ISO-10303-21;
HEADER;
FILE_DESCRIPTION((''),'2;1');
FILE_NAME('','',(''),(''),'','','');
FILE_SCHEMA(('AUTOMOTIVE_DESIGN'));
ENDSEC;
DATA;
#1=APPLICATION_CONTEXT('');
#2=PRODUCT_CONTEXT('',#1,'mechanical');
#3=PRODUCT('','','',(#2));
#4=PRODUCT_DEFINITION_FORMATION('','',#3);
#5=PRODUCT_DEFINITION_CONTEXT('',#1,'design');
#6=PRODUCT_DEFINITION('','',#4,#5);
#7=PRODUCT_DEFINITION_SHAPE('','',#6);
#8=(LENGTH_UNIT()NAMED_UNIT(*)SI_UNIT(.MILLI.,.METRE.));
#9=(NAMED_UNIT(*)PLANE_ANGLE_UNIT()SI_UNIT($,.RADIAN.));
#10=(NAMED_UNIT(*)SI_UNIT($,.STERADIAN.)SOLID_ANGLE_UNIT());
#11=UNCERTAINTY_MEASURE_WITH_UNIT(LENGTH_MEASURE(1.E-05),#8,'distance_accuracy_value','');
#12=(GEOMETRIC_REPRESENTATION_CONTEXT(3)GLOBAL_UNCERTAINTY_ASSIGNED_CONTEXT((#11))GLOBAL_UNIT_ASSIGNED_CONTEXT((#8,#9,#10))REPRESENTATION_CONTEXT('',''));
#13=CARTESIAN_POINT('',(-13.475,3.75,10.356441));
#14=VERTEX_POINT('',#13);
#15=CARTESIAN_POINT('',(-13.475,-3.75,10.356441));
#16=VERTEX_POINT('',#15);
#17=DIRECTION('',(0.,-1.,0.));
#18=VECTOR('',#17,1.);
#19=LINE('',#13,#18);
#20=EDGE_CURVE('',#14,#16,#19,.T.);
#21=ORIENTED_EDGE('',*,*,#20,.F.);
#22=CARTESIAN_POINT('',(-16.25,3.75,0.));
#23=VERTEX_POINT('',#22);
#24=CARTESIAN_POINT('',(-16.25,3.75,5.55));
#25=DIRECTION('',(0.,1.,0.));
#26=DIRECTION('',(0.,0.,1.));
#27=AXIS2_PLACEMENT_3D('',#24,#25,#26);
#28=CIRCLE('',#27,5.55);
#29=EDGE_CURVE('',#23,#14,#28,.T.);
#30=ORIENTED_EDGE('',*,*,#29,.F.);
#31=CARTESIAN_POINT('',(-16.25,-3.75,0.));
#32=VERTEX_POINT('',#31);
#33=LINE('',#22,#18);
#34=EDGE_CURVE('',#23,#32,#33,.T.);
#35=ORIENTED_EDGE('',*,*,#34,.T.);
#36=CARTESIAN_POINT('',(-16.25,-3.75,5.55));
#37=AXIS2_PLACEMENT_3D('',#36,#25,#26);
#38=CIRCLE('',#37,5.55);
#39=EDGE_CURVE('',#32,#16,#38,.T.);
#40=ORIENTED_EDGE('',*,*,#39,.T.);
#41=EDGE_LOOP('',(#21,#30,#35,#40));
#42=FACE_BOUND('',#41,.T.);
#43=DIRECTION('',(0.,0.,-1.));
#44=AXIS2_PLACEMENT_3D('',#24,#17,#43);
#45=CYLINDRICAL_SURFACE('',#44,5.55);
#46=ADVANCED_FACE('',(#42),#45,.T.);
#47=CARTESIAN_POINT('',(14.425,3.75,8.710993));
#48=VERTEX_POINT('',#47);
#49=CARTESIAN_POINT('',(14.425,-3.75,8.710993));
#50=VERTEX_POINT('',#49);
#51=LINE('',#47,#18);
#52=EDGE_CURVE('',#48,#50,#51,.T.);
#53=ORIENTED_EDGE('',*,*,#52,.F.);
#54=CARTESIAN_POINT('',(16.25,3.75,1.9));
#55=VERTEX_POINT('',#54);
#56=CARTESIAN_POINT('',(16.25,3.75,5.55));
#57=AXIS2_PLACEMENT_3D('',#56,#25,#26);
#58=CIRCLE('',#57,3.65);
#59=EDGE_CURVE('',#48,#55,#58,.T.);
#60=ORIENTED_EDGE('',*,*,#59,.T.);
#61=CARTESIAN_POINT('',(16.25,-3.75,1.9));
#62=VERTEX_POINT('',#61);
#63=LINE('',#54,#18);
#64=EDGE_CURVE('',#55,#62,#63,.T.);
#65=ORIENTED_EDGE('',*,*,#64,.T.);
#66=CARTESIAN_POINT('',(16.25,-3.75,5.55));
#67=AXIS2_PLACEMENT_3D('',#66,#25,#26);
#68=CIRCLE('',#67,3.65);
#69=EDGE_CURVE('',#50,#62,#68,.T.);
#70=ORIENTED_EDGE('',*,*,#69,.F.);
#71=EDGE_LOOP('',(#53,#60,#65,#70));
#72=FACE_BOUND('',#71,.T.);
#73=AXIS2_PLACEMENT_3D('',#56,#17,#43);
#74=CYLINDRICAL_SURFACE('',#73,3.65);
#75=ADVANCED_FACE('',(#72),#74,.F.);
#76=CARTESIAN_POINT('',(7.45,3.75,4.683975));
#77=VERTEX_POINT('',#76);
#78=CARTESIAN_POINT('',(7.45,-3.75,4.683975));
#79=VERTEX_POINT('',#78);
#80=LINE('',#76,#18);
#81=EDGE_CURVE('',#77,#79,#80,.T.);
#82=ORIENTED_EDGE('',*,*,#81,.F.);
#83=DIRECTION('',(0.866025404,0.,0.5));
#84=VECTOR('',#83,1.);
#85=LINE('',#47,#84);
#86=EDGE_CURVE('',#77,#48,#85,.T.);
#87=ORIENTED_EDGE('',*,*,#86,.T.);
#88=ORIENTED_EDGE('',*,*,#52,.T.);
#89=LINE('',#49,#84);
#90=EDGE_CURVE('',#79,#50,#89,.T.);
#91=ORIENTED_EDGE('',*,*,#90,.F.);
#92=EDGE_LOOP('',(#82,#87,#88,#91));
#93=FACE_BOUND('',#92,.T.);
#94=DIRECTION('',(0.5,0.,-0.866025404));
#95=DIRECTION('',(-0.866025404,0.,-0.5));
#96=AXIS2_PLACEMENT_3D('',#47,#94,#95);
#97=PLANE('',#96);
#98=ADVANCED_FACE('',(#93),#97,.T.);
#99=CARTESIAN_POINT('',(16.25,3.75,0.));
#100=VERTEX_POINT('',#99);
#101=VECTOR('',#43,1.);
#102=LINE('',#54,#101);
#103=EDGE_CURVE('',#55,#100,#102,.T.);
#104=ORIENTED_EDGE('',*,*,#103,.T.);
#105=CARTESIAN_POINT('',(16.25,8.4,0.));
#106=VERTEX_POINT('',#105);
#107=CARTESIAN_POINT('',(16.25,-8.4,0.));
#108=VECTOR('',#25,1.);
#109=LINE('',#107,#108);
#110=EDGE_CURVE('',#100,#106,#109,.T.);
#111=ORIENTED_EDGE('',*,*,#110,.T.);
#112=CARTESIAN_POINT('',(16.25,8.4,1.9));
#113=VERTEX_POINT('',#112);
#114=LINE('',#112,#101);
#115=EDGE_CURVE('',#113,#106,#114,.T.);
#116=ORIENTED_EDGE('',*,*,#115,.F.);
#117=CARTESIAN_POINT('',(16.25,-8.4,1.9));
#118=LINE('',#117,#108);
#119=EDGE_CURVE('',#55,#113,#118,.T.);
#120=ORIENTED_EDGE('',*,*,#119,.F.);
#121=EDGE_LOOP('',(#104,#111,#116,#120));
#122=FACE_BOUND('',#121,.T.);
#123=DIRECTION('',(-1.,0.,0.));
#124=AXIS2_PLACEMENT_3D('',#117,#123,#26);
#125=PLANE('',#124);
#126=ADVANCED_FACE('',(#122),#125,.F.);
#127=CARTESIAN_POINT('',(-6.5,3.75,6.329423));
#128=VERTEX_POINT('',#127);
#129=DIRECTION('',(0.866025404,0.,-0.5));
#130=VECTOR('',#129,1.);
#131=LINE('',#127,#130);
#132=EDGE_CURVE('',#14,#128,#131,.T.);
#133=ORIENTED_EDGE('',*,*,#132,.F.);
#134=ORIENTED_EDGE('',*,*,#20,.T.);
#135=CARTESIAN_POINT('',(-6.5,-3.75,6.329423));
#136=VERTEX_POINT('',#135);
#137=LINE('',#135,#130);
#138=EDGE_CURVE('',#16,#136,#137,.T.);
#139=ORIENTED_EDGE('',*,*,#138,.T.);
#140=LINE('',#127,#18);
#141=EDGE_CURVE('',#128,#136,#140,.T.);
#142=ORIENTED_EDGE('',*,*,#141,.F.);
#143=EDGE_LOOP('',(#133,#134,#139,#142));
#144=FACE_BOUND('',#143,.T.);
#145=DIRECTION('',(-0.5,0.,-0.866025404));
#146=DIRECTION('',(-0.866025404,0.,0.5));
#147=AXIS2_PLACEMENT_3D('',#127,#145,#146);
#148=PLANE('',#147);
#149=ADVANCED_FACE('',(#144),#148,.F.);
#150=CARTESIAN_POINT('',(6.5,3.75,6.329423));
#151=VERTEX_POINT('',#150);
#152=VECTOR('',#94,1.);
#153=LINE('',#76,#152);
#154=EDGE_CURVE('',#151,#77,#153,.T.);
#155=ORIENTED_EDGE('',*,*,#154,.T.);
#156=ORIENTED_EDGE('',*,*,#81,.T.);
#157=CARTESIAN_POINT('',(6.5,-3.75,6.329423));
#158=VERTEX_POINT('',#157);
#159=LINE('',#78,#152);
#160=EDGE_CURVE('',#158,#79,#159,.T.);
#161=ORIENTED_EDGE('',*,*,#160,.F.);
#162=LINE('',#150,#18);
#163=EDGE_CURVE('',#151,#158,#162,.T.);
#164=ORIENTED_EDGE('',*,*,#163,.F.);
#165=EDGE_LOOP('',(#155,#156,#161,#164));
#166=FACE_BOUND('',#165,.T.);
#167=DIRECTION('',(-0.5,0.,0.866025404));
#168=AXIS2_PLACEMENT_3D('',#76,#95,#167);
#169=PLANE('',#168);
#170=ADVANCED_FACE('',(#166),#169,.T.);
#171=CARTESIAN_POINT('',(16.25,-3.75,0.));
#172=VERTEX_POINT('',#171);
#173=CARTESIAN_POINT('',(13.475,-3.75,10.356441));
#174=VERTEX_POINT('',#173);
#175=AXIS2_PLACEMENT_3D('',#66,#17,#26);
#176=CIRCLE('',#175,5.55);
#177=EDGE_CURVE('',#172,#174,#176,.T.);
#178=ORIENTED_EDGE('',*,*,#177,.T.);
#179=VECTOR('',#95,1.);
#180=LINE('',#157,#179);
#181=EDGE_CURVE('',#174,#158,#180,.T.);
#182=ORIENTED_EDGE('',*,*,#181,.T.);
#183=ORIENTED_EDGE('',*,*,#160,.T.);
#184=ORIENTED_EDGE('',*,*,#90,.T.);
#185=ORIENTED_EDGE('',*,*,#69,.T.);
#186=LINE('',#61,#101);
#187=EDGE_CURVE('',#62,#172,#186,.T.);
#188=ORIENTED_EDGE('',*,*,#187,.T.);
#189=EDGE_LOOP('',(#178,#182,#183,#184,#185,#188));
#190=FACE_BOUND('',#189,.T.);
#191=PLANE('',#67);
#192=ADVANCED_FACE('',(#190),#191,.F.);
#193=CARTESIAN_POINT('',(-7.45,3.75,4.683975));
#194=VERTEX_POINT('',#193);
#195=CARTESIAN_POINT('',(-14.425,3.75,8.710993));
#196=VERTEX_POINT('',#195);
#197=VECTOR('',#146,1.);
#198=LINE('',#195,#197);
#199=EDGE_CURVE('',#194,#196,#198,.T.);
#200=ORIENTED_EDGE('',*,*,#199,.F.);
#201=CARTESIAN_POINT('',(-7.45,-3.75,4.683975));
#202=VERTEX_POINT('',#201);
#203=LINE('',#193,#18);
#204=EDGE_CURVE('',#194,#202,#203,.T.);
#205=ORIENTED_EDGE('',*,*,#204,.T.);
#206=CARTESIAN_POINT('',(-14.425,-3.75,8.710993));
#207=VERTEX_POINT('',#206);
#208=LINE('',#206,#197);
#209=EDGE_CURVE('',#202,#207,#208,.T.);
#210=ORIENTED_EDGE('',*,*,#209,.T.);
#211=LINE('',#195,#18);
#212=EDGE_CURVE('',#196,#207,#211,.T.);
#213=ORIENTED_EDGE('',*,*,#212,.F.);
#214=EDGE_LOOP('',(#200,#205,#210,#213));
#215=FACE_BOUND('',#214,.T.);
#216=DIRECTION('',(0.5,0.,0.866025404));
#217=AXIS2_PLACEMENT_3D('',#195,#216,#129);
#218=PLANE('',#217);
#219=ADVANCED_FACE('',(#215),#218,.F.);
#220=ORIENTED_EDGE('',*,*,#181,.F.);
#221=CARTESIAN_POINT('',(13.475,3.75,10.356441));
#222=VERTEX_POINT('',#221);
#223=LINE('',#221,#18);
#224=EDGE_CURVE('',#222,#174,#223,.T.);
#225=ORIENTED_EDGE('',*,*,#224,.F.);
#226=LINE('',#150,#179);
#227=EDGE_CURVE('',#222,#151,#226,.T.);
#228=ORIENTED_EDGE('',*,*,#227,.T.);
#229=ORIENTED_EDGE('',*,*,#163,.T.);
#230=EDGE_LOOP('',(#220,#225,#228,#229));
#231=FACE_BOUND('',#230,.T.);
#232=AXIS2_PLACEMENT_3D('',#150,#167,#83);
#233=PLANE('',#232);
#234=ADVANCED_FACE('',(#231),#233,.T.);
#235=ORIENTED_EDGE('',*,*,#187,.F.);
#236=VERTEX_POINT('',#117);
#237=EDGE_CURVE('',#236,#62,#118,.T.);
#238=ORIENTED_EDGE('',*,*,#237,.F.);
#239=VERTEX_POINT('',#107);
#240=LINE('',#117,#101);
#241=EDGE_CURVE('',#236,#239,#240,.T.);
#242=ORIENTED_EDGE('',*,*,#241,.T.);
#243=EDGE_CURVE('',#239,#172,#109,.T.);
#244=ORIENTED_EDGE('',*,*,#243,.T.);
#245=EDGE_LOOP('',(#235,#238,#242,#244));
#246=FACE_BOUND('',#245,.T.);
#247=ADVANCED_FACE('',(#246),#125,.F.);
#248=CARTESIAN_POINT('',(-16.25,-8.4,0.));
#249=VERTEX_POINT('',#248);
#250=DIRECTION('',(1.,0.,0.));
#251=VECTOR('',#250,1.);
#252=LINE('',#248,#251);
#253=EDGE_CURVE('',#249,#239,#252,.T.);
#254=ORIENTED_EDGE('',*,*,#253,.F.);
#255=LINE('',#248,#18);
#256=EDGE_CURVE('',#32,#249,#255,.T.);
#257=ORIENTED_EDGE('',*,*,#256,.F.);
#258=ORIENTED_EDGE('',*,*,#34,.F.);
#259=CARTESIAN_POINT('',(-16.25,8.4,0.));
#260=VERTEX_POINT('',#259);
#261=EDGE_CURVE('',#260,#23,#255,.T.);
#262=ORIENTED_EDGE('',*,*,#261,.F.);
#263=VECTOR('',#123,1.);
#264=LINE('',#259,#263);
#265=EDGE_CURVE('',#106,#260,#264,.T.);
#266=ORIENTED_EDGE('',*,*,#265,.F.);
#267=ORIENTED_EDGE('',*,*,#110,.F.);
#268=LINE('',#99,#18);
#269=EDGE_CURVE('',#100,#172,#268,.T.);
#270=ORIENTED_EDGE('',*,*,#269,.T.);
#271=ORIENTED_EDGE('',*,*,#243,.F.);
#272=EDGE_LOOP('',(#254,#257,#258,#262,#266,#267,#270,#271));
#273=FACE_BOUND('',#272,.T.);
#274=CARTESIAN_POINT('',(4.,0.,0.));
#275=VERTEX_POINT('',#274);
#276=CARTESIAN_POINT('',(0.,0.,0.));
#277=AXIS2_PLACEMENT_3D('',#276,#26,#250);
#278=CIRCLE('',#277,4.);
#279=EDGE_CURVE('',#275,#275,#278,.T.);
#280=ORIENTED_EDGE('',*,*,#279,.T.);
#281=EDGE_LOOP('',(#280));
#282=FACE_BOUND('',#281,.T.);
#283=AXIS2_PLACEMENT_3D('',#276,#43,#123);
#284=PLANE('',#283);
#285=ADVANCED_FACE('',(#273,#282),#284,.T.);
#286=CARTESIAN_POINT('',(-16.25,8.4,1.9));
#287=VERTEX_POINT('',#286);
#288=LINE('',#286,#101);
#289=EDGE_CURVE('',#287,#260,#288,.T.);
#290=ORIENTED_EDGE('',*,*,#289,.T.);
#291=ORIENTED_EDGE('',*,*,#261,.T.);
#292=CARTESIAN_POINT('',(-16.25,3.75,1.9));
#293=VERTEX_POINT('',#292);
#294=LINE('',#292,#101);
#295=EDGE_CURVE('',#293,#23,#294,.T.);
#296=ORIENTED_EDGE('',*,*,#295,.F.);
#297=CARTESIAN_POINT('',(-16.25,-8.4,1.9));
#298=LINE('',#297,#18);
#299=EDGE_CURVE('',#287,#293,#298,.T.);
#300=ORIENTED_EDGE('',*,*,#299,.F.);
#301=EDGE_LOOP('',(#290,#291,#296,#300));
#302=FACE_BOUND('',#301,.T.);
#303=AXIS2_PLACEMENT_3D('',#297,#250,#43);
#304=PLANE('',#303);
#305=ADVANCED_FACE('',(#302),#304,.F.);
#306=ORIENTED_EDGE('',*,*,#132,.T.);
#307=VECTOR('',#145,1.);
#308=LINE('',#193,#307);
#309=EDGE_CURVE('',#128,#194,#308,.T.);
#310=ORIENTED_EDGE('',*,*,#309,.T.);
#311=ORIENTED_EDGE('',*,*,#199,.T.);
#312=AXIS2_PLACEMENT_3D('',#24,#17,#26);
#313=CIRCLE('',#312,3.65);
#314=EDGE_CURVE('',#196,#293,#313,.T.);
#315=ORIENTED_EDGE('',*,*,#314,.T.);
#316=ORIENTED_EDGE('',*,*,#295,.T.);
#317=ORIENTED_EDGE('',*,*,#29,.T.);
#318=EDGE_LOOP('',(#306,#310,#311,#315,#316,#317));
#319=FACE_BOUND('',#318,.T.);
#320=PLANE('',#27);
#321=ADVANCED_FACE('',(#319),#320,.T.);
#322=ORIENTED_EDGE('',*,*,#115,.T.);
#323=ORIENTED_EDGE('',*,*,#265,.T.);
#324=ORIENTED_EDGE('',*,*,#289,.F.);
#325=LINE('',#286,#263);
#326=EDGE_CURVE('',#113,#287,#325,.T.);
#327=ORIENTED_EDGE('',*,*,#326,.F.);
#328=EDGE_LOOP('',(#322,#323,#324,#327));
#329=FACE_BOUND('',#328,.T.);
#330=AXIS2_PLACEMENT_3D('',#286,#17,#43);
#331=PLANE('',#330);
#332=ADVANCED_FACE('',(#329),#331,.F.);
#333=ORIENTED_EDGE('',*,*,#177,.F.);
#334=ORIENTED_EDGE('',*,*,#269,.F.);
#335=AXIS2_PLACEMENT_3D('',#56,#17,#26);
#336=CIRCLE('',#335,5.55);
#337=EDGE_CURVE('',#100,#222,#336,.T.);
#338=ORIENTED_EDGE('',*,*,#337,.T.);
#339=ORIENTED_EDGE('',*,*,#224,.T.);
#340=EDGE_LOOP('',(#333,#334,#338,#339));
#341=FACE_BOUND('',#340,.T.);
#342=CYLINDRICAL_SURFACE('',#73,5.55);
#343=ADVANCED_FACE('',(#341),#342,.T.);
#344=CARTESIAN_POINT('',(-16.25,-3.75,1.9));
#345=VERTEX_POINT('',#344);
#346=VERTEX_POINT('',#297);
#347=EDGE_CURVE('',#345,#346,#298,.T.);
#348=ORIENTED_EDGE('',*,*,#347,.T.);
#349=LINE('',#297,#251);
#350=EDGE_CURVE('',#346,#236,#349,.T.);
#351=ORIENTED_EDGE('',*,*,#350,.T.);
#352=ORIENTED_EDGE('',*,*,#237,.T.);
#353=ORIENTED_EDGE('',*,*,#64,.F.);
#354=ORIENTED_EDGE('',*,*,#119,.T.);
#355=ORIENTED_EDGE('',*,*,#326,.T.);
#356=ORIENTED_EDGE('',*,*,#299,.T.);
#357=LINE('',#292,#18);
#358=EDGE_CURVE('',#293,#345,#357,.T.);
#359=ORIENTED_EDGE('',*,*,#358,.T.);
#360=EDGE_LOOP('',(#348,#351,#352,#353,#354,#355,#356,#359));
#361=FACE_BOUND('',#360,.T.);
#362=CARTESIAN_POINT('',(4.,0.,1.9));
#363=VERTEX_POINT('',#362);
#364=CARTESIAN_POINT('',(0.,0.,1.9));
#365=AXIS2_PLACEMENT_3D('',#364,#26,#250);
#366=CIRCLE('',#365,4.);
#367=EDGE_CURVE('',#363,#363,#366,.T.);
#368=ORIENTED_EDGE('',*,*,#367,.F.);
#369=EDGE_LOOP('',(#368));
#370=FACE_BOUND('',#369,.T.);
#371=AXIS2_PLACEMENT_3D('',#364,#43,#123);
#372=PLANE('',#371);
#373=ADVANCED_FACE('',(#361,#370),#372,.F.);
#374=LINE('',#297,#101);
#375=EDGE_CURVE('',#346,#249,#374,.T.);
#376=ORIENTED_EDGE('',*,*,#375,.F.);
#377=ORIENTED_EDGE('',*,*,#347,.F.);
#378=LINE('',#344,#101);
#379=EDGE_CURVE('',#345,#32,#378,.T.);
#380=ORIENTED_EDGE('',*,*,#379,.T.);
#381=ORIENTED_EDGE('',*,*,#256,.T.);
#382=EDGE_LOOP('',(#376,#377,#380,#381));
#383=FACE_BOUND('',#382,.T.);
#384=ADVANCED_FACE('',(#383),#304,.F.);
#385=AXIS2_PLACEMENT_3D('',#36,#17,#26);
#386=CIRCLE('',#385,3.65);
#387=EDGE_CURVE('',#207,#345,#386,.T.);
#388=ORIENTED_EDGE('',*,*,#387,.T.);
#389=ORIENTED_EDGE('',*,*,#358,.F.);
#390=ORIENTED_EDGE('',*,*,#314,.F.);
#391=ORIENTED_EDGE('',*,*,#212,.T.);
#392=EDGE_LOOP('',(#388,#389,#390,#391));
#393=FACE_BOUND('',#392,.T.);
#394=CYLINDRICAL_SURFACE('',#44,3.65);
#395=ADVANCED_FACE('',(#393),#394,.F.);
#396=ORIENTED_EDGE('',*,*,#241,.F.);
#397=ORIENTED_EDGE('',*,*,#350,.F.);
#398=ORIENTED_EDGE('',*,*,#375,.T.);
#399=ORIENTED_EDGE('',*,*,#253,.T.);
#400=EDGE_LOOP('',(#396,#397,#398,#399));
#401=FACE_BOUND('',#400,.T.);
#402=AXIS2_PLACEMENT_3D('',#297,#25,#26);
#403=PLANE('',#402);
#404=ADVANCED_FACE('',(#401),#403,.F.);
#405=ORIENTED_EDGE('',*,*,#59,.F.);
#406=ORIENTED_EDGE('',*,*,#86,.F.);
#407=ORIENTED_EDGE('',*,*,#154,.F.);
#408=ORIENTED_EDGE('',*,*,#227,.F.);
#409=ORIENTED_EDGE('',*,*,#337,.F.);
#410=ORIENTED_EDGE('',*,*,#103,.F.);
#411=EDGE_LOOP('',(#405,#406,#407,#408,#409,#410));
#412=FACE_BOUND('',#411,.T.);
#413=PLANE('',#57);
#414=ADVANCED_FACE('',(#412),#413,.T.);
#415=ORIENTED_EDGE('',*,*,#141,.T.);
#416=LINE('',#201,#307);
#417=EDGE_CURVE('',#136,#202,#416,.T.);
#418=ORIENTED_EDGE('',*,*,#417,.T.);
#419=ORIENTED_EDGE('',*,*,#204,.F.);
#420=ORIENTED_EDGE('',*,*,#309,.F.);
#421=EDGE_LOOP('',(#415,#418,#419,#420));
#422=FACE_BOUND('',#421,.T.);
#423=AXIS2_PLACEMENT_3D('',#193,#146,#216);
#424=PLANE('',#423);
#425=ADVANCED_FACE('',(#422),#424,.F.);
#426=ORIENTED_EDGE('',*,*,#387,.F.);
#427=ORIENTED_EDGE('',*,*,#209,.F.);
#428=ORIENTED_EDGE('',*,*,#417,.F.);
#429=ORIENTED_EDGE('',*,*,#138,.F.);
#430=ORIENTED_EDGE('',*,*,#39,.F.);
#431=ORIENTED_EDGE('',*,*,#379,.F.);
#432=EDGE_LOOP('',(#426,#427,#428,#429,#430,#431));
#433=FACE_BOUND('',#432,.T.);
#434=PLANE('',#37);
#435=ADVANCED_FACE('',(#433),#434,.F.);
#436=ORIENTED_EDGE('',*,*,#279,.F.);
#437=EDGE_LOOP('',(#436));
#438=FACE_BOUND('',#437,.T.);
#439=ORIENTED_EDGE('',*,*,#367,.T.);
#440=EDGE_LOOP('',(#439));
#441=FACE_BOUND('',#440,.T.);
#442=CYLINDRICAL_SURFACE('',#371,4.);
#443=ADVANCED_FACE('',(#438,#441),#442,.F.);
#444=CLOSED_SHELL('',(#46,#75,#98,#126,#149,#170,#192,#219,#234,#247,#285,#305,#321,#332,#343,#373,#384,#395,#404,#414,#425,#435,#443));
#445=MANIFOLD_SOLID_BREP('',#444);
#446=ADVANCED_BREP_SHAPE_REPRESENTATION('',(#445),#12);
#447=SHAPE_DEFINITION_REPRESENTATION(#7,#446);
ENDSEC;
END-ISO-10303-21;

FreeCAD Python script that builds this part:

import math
import FreeCAD as App
import Part
import Sketcher
from FreeCAD import Vector
Q = App.Units.Quantity


def add_polygon(sketch, points):
    """Adds a closed chain of lines whose ends are joined by coincident constraints."""
    first, n = sketch.GeometryCount, len(points)
    for a, b in zip(points, points[1:] + points[:1]):
        sketch.addGeometry(Part.LineSegment(App.Vector(*a, 0), App.Vector(*b, 0)), False)
    for i in range(n):
        sketch.addConstraint(Sketcher.Constraint("Coincident", first + i, 2, first + (i + 1) % n, 1))

doc = App.newDocument("Part")
body = doc.addObject("PartDesign::Body", "Body")

# Sketch on XY plane
sketch1 = body.newObject("Sketcher::SketchObject", "Sketch")
sketch1.AttachmentSupport = (doc.getObject("XY_Plane"), [""])
sketch1.MapMode = "FlatFace"
add_polygon(sketch1, [(-16.2, 8.4), (-16.2, -8.4), (16.2, -8.4), (16.2, 8.4)])  # lines 0-3
sketch1.addGeometry(Part.Circle(Vector(0, 0, 0), Vector(0, 0, 1), 4), False)  # 4
sketch1.addConstraint(Sketcher.Constraint("Vertical", 0))
sketch1.addConstraint(Sketcher.Constraint("Horizontal", 1))
sketch1.addConstraint(Sketcher.Constraint("Vertical", 2))
sketch1.addConstraint(Sketcher.Constraint("Horizontal", 3))
sketch1.addConstraint(Sketcher.Constraint("Coincident", 4, 3, -1, 1))
sketch1.addConstraint(Sketcher.Constraint("Symmetric", 0, 2, 2, 2, -1, 1))
sketch1.addConstraint(Sketcher.Constraint("Diameter", 4, 8.0))
sketch1.addConstraint(Sketcher.Constraint("DistanceX", 1, 1, 1, 2, 32.5))
sketch1.addConstraint(Sketcher.Constraint("DistanceY", 0, 2, 0, 1, 16.8))
pad1 = body.newObject("PartDesign::Pad", "Pad")
pad1.Profile = sketch1
pad1.Length = 1.9

# Sketch on XZ plane
sketch2 = body.newObject("Sketcher::SketchObject", "Sketch001")
sketch2.AttachmentSupport = (doc.getObject("XZ_Plane"), [""])
sketch2.MapMode = "FlatFace"
sketch2.addGeometry(Part.LineSegment(Vector(-7.5, 4.7, 0), Vector(-14.4, 8.7, 0)), False)
sketch2.addGeometry(Part.ArcOfCircle(Part.Circle(Vector(-16.2, 5.5, 0), Vector(0, 0, 1), 3.6), math.radians(60), math.radians(270)), False)
sketch2.addGeometry(Part.LineSegment(Vector(-16.2, 1.9, 0), Vector(-16.2, 0, 0)), False)
sketch2.addGeometry(Part.ArcOfCircle(Part.Circle(Vector(-16.2, 5.5, 0), Vector(0, 0, 1), 5.5), math.radians(60), math.radians(270)), False)
sketch2.addGeometry(Part.LineSegment(Vector(-13.5, 10.4, 0), Vector(-6.5, 6.3, 0)), False)
sketch2.addGeometry(Part.LineSegment(Vector(-6.5, 6.3, 0), Vector(-7.5, 4.7, 0)), False)
sketch2.addConstraint(Sketcher.Constraint("Tangent", 0, 2, 1, 1))
sketch2.addConstraint(Sketcher.Constraint("Coincident", 1, 2, 2, 1))
sketch2.addConstraint(Sketcher.Constraint("Coincident", 2, 2, 3, 2))
sketch2.addConstraint(Sketcher.Constraint("Tangent", 3, 1, 4, 1))
sketch2.addConstraint(Sketcher.Constraint("Coincident", 4, 2, 5, 1))
sketch2.addConstraint(Sketcher.Constraint("Coincident", 5, 2, 0, 1))
sketch2.addConstraint(Sketcher.Constraint("Vertical", 2))
sketch2.addConstraint(Sketcher.Constraint("Coincident", 3, 3, 1, 3))
sketch2.addConstraint(Sketcher.Constraint("PointOnObject", 2, 2, -1))
sketch2.addConstraint(Sketcher.Constraint("Parallel", 0, 4))
sketch2.addConstraint(Sketcher.Constraint("Perpendicular", 4, 5))
sketch2.addConstraint(Sketcher.Constraint("Vertical", 3, 3, 1, 2))
sketch2.addConstraint(Sketcher.Constraint("Angle", 0, Q("150 deg")))
sketch2.addConstraint(Sketcher.Constraint("Radius", 1, 3.65))
sketch2.addConstraint(Sketcher.Constraint("Radius", 3, 5.55))
sketch2.addConstraint(Sketcher.Constraint("DistanceX", 4, 2, -1, 1, 6.5))
sketch2.addConstraint(Sketcher.Constraint("DistanceX", 1, 3, 5, 2, 8.8))
pad2 = body.newObject("PartDesign::Pad", "Pad001")
pad2.Profile = sketch2
pad2.Length = 7.5
pad2.Midplane = True
doc.recompute()

mirrored = body.newObject("PartDesign::Mirrored", "Mirrored")
mirrored.Originals = [pad2]
mirrored.MirrorPlane = (doc.getObject("YZ_Plane"), [""])
body.Tip = mirrored

doc.recompute()
